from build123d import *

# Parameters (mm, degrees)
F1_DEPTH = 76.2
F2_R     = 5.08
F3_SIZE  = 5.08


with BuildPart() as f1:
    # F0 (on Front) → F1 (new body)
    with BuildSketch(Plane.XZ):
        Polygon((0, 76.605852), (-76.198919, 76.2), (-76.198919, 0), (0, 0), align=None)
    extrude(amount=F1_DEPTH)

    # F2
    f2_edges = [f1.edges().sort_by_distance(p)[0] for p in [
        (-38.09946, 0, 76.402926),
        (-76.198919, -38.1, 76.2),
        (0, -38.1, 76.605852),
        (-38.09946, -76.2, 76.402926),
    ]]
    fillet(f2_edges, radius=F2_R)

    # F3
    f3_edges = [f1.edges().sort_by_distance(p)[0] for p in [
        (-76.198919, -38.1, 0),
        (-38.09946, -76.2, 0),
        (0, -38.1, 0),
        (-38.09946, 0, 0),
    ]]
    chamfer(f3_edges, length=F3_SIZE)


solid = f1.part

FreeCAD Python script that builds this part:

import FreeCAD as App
import Part
import Sketcher
Q = App.Units.Quantity


def edges_at(feature, points):
    """Names of the edges that pass closest to the given points."""
    edges = feature.Shape.Edges
    near = lambda p: min(range(len(edges)), key=lambda i: edges[i].distToShape(Part.Vertex(*p))[0])
    return sorted({f"Edge{near(p) + 1}" for p in points})

doc = App.newDocument("Part")
params = doc.addObject("Spreadsheet::Sheet", "Params")
for row, (alias, value) in enumerate([
    ("sketch1_height", "3 in"),
    ("sketch1_length", "3 in"),
    ("pad1_length", "3 in"),
    ("fillet_radius", "0.2 in"),
    ("chamfer_size", "0.2 in"),
], start=1):
    params.set(f"A{row}", alias)
    params.set(f"B{row}", "=" + value)
    params.setAlias(f"B{row}", alias)

body = doc.addObject("PartDesign::Body", "Body")

# Sketch on XZ plane
sketch1 = body.newObject("Sketcher::SketchObject", "Sketch")
sketch1.AttachmentSupport = (doc.getObject("XZ_Plane"), [""])
sketch1.MapMode = "FlatFace"
sketch1.addGeometry(Part.LineSegment(App.Vector(0, 76.605852, 0), App.Vector(-76.198919, 76.2, 0)), False)
sketch1.addGeometry(Part.LineSegment(App.Vector(-76.198919, 76.2, 0), App.Vector(-76.198919, 0, 0)), False)
sketch1.addGeometry(Part.LineSegment(App.Vector(-76.198919, 0, 0), App.Vector(0, 0, 0)), False)
sketch1.addGeometry(Part.LineSegment(App.Vector(0, 0, 0), App.Vector(0, 76.605852, 0)), False)
sketch1.addConstraint(Sketcher.Constraint("Coincident", 0, 2, 1, 1))
sketch1.addConstraint(Sketcher.Constraint("Coincident", 1, 2, 2, 1))
sketch1.addConstraint(Sketcher.Constraint("Coincident", 2, 2, 3, 1))
sketch1.addConstraint(Sketcher.Constraint("Coincident", 3, 2, 0, 1))
sketch1.addConstraint(Sketcher.Constraint("Vertical", 1))
sketch1.addConstraint(Sketcher.Constraint("Horizontal", 2))
sketch1.addConstraint(Sketcher.Constraint("Vertical", 3))
sketch1.addConstraint(Sketcher.Constraint("Coincident", 2, 2, -1, 1))
sketch1.addConstraint(Sketcher.Constraint("DistanceY", 1, 2, 1, 1, Q("3 in")))
sketch1.addConstraint(Sketcher.Constraint("Distance", 0, Q("3 in")))
sketch1.addConstraint(Sketcher.Constraint("DistanceX", 2, 1, 2, 2, Q("76.198919 mm")))
sketch1.setExpression("Constraints[8]", "Params.sketch1_height")
sketch1.setExpression("Constraints[9]", "Params.sketch1_length")
pad1 = body.newObject("PartDesign::Pad", "Pad")
pad1.Profile = sketch1
pad1.setExpression("Length", "Params.pad1_length")
doc.recompute()

fillet = body.newObject("PartDesign::Fillet", "Fillet")
fillet.Base = (pad1, edges_at(pad1, [
    (-38.099, 0, 76.403),
    (-76.199, -38.1, 76.2),
    (0, -38.1, 76.606),
    (-38.099, -76.2, 76.403),
]))
fillet.setExpression("Radius", "Params.fillet_radius")
doc.recompute()

chamfer = body.newObject("PartDesign::Chamfer", "Chamfer")
chamfer.Base = (fillet, edges_at(fillet, [
    (-76.199, -38.1, 0),
    (-38.099, -76.2, 0),
    (0, -38.1, 0),
    (-38.099, 0, 0),
]))
chamfer.setExpression("Size", "Params.chamfer_size")

doc.recompute()
